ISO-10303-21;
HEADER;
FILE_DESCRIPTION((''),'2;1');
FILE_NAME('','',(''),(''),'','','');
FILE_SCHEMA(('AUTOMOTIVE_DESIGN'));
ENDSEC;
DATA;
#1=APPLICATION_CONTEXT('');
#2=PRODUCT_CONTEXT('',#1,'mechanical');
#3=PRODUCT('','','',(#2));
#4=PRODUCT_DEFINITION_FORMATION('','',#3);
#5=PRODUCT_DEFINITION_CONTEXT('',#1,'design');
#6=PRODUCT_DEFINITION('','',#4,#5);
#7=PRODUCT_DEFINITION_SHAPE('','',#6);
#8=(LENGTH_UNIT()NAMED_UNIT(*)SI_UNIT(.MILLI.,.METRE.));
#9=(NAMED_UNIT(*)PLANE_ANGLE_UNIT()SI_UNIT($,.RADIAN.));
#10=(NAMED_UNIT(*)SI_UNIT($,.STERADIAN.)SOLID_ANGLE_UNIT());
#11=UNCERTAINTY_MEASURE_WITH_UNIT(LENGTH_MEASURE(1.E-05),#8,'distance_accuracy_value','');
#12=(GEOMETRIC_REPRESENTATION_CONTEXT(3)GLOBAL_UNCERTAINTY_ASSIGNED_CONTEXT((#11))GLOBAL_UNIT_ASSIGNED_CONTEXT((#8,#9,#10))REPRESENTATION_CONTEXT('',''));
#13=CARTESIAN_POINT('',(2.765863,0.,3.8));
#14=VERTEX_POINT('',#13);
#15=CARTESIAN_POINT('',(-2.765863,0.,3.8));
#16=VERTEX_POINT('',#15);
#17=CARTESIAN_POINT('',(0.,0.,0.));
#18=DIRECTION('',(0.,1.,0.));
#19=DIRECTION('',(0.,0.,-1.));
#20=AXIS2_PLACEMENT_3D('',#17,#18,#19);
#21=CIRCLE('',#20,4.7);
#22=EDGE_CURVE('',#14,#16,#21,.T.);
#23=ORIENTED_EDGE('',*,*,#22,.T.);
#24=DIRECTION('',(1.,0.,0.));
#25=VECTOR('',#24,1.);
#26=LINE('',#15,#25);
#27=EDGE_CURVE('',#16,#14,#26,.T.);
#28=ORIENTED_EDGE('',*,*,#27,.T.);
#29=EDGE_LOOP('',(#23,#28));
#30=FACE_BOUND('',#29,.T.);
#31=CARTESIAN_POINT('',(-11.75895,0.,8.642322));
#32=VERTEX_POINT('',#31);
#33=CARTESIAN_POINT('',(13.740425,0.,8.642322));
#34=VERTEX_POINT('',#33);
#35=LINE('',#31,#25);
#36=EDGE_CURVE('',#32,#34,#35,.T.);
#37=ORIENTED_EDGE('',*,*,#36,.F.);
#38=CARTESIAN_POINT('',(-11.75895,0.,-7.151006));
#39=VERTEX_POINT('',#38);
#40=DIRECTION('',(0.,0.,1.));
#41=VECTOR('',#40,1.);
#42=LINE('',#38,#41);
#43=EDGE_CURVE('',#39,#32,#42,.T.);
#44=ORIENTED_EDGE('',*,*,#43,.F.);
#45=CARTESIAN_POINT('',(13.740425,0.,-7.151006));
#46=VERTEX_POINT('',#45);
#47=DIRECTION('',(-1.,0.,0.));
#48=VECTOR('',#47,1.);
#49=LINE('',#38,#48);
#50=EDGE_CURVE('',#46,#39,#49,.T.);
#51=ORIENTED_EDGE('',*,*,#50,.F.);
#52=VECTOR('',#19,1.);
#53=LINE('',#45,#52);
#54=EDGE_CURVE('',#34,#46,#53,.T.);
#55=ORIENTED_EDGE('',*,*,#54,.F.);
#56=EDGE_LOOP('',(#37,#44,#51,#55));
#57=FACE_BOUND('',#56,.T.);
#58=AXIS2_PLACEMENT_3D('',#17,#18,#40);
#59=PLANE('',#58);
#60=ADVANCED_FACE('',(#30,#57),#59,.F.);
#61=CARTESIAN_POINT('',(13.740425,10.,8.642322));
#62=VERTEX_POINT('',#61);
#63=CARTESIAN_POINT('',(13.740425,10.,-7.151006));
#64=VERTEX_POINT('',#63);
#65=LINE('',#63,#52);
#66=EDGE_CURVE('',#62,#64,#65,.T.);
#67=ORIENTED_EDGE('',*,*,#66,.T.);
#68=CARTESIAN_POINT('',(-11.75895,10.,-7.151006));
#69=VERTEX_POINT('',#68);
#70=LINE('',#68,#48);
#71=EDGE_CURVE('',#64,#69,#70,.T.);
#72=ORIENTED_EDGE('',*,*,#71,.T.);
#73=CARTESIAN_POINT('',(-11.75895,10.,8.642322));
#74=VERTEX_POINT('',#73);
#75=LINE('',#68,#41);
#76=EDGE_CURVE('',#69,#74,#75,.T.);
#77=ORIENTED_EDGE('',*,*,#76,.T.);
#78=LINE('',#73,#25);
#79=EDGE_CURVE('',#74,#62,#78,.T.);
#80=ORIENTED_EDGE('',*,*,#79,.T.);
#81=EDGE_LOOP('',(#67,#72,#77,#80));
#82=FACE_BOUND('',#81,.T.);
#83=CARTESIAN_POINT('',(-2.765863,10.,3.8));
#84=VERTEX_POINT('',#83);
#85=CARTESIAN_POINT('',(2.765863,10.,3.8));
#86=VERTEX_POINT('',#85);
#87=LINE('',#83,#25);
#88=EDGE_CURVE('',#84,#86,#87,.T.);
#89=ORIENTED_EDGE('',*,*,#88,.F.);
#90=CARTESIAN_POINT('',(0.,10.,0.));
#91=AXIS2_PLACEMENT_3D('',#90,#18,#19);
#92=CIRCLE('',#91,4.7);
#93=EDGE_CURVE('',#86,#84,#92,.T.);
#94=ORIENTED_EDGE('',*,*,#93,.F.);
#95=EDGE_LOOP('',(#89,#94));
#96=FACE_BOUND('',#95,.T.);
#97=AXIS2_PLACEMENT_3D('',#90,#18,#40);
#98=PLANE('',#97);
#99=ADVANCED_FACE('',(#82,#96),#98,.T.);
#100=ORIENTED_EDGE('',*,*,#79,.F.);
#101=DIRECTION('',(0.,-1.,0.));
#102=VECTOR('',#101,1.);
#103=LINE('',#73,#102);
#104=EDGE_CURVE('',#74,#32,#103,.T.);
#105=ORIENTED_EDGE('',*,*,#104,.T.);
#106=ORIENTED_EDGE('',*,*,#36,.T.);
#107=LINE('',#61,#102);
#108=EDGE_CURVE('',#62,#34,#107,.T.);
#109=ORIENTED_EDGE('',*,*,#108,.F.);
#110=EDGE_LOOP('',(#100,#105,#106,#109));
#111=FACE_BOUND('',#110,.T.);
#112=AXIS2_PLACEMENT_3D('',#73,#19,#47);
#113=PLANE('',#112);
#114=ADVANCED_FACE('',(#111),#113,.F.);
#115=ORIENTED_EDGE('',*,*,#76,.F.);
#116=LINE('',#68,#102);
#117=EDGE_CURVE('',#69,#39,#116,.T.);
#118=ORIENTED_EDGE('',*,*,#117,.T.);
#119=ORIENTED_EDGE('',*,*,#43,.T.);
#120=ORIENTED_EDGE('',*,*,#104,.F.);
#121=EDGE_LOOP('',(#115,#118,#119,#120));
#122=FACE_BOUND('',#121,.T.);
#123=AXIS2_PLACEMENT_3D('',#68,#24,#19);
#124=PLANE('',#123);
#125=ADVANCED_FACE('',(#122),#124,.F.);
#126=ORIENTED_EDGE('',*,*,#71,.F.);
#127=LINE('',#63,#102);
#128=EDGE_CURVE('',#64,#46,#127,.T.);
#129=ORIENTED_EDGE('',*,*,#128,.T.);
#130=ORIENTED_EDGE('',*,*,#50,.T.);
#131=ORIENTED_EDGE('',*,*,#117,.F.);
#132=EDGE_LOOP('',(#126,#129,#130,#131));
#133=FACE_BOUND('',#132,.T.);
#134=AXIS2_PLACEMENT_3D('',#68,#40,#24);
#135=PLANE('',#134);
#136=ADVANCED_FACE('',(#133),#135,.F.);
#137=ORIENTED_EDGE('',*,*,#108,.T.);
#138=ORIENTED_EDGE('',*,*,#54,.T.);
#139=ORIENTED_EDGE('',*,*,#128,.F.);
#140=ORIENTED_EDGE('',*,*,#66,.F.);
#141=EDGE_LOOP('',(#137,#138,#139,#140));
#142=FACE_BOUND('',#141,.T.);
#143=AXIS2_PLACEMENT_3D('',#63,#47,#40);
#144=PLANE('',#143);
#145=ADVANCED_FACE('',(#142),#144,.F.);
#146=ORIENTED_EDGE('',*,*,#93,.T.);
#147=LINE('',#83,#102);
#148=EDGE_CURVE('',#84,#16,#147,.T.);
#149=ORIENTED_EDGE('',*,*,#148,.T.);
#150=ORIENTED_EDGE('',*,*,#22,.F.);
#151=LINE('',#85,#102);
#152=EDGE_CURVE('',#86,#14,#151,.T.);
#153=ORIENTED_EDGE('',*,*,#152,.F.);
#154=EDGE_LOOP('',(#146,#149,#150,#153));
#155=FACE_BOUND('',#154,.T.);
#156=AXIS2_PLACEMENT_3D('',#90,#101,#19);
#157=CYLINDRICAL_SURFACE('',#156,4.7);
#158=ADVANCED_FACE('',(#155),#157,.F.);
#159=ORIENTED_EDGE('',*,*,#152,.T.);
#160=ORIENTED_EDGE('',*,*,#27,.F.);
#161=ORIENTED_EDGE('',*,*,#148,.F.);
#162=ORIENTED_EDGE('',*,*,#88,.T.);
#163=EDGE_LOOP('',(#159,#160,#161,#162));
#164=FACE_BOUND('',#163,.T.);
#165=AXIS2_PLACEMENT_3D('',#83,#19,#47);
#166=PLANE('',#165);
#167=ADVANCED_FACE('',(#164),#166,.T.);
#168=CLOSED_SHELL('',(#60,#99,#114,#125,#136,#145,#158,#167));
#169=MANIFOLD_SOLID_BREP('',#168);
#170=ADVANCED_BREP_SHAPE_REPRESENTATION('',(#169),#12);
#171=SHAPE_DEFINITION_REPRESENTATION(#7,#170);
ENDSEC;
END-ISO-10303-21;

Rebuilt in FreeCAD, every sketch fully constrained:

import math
import FreeCAD as App
import Part
import Sketcher
Q = App.Units.Quantity


def add_polygon(sketch, points):
    """Adds a closed chain of lines whose ends are joined by coincident constraints."""
    first, n = sketch.GeometryCount, len(points)
    for a, b in zip(points, points[1:] + points[:1]):
        sketch.addGeometry(Part.LineSegment(App.Vector(*a, 0), App.Vector(*b, 0)), False)
    for i in range(n):
        sketch.addConstraint(Sketcher.Constraint("Coincident", first + i, 2, first + (i + 1) % n, 1))

doc = App.newDocument("Part")
body = doc.addObject("PartDesign::Body", "Body")

# Sketch on XZ plane
sketch1 = body.newObject("Sketcher::SketchObject", "Sketch")
sketch1.AttachmentSupport = (doc.getObject("XZ_Plane"), [""])
sketch1.MapMode = "FlatFace"
add_polygon(sketch1, [(-11.8, -7.2), (-11.8, 8.6), (13.7, 8.6), (13.7, -7.2)])  # lines 0-3
sketch1.addGeometry(Part.LineSegment(App.Vector(2.8, 3.8, 0), App.Vector(-2.8, 3.8, 0)), False)  # 4
sketch1.addGeometry(Part.ArcOfCircle(Part.Circle(App.Vector(0, 0, 0), App.Vector(0, 0, 1), 4.7), math.radians(126), math.radians(414)), False)  # 5
sketch1.addConstraint(Sketcher.Constraint("Coincident", 4, 1, 5, 2))
sketch1.addConstraint(Sketcher.Constraint("Coincident", 5, 1, 4, 2))
sketch1.addConstraint(Sketcher.Constraint("Vertical", 0))
sketch1.addConstraint(Sketcher.Constraint("Horizontal", 1))
sketch1.addConstraint(Sketcher.Constraint("Vertical", 2))
sketch1.addConstraint(Sketcher.Constraint("Horizontal", 3))
sketch1.addConstraint(Sketcher.Constraint("Horizontal", 4))
sketch1.addConstraint(Sketcher.Constraint("Coincident", 5, 3, -1, 1))
sketch1.addConstraint(Sketcher.Constraint("Radius", 5, Q("4.7 mm")))
sketch1.addConstraint(Sketcher.Constraint("DistanceY", -1, 1, 4, 1, Q("3.8 mm")))
sketch1.addConstraint(Sketcher.Constraint("DistanceY", 0, 1, 0, 2, Q("15.793328 mm")))
sketch1.addConstraint(Sketcher.Constraint("DistanceX", 1, 1, 1, 2, Q("25.499375 mm")))
sketch1.addConstraint(Sketcher.Constraint("DistanceX", 0, 2, -1, 1, Q("11.75895 mm")))
sketch1.addConstraint(Sketcher.Constraint("DistanceY", -1, 1, 0, 2, Q("8.642322 mm")))
pad1 = body.newObject("PartDesign::Pad", "Pad")
pad1.Profile = sketch1
pad1.Length = 10
pad1.Reversed = True

doc.recompute()
